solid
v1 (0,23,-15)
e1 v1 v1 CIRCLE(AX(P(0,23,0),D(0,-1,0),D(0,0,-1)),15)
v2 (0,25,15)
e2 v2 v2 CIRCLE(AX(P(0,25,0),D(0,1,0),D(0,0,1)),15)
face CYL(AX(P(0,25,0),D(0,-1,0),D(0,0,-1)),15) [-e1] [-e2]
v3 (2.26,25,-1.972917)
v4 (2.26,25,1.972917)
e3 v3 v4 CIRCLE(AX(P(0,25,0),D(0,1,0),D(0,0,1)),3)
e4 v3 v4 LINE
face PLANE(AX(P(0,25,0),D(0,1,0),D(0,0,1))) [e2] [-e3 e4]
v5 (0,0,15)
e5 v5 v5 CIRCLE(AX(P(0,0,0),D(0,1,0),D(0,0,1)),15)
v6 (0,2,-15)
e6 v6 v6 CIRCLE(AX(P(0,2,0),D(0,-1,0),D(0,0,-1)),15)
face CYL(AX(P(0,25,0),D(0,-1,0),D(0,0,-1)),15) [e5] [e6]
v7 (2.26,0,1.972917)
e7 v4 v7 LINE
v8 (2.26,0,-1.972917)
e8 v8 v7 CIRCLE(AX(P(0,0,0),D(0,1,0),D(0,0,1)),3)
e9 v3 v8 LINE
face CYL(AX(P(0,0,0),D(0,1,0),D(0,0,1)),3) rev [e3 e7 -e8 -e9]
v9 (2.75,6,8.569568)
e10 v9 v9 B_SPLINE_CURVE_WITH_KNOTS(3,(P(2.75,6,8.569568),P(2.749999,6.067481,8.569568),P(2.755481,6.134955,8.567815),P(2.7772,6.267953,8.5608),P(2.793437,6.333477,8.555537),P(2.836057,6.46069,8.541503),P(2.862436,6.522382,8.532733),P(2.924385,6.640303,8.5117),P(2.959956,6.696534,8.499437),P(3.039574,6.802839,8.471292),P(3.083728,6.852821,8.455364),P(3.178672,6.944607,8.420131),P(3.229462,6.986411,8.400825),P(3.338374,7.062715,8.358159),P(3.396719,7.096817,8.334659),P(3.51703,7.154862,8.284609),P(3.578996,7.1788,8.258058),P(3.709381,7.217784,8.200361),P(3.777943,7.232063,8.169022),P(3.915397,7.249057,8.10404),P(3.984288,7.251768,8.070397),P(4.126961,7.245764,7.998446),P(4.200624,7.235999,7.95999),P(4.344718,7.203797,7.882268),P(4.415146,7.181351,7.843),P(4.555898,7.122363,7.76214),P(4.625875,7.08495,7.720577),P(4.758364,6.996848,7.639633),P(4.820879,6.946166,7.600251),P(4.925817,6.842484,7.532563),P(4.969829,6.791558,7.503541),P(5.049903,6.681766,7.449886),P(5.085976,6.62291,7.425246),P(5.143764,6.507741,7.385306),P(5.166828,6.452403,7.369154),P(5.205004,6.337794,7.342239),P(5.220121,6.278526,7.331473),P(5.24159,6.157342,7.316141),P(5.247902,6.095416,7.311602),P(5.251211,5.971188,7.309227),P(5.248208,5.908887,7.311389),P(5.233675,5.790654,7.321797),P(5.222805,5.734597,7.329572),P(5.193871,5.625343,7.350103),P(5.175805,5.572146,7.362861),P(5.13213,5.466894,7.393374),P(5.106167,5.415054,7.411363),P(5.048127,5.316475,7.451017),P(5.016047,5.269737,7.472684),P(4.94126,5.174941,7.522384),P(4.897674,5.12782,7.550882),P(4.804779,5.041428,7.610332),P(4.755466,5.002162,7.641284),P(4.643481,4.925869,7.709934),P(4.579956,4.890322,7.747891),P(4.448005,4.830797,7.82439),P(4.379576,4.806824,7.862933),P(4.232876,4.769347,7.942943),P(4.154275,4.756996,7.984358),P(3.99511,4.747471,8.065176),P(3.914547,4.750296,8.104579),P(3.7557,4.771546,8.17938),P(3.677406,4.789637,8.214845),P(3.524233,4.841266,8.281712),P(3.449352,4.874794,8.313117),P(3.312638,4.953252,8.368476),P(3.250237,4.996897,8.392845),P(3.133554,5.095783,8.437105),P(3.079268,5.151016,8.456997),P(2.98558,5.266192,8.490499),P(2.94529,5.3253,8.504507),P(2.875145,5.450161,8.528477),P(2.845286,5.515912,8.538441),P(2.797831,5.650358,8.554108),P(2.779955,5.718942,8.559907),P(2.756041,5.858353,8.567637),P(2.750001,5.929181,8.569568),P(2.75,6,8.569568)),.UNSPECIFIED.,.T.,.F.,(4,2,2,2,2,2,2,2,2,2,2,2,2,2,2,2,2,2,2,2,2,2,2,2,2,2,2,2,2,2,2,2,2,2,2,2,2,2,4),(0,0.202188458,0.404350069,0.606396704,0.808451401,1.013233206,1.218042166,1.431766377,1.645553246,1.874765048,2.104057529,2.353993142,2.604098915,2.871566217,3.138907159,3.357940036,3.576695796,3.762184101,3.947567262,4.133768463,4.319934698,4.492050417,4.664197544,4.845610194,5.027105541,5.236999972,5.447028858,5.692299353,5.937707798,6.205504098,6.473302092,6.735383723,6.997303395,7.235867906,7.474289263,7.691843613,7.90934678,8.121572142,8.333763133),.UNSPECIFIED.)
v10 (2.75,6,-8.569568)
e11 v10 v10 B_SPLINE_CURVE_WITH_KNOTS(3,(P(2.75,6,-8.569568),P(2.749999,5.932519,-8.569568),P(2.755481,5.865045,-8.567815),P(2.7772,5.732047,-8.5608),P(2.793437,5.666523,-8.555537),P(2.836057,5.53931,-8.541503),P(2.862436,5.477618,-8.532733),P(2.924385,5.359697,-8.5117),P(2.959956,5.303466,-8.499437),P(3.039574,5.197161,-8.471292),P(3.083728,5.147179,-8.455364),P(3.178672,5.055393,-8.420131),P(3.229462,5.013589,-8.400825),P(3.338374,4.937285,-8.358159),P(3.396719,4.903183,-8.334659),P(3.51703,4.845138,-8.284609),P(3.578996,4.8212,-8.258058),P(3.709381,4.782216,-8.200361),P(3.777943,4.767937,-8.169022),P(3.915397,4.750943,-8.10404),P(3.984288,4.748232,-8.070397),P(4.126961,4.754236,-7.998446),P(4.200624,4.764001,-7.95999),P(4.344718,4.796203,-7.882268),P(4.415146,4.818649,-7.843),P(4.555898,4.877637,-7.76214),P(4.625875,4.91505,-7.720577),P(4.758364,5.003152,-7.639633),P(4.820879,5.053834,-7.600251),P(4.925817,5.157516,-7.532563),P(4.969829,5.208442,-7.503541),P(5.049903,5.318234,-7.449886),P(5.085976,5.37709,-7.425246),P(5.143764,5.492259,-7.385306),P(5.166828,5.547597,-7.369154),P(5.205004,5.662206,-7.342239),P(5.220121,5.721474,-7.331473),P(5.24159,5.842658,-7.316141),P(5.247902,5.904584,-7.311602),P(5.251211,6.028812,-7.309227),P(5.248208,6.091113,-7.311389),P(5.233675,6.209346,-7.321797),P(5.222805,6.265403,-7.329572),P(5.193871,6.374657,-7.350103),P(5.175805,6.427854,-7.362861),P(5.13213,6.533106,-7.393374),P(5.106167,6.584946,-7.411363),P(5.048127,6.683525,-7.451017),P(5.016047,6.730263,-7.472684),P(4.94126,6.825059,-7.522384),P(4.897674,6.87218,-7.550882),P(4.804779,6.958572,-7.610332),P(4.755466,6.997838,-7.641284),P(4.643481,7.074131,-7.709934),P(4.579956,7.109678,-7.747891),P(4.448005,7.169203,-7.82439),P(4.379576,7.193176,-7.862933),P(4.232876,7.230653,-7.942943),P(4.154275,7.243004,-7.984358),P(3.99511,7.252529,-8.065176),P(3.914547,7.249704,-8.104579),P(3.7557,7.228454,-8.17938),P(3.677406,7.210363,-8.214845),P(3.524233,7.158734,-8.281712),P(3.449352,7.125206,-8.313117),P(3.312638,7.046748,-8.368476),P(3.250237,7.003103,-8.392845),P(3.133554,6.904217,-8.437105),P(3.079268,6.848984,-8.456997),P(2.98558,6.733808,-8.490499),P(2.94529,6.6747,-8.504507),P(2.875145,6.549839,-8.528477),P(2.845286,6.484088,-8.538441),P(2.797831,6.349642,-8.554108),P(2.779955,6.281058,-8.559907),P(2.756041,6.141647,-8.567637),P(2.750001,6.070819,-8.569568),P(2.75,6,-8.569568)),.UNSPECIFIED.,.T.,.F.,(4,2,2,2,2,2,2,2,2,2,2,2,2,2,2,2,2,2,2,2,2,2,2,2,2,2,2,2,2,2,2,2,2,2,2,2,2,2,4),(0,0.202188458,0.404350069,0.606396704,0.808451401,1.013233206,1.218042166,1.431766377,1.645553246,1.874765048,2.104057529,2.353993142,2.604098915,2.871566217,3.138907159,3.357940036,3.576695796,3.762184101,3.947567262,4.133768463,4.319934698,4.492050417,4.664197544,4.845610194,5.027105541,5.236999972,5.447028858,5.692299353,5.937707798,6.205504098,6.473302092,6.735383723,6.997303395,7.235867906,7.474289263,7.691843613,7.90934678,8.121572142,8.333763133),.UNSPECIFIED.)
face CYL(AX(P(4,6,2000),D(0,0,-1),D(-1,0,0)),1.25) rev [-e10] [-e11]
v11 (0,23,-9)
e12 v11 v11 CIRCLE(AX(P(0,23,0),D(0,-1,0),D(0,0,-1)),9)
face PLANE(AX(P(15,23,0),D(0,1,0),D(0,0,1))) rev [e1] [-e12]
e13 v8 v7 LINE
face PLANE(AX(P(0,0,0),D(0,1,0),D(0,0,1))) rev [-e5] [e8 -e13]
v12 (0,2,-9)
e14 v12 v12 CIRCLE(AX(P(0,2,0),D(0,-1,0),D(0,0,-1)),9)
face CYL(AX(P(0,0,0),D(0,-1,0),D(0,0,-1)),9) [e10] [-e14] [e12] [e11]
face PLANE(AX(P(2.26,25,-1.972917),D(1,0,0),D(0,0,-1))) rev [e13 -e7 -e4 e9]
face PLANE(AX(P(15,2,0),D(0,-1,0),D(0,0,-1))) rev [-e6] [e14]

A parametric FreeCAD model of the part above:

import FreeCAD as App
import Part
import Sketcher
from FreeCAD import Vector


def add_polygon(sketch, points):
    """Adds a closed chain of lines whose ends are joined by coincident constraints."""
    first, n = sketch.GeometryCount, len(points)
    for a, b in zip(points, points[1:] + points[:1]):
        sketch.addGeometry(Part.LineSegment(App.Vector(*a, 0), App.Vector(*b, 0)), False)
    for i in range(n):
        sketch.addConstraint(Sketcher.Constraint("Coincident", first + i, 2, first + (i + 1) % n, 1))

doc = App.newDocument("Part")
body = doc.addObject("PartDesign::Body", "Body")

# Sketch on XZ plane
sketch1 = body.newObject("Sketcher::SketchObject", "Sketch")
sketch1.AttachmentSupport = (doc.getObject("XZ_Plane"), [""])
sketch1.MapMode = "FlatFace"
sketch1.addGeometry(Part.Circle(Vector(0, 0, 0), Vector(0, 0, 1), 15), False)
sketch1.addConstraint(Sketcher.Constraint("Coincident", 0, 3, -1, 1))
sketch1.addConstraint(Sketcher.Constraint("Diameter", 0, 30.0))
pad1 = body.newObject("PartDesign::Pad", "Pad")
pad1.Profile = sketch1
pad1.Length = 25
pad1.Reversed = True

# Sketch on XZ plane
sketch2 = body.newObject("Sketcher::SketchObject", "Sketch001")
sketch2.AttachmentSupport = (doc.getObject("XZ_Plane"), [""])
sketch2.MapMode = "FlatFace"
sketch2.AttachmentOffset = App.Placement(Vector(0, 0, -25), App.Rotation())
sketch2.addGeometry(Part.Circle(Vector(0, 0, 0), Vector(0, 0, 1), 3), False)
sketch2.addConstraint(Sketcher.Constraint("Coincident", 0, 3, -1, 1))
sketch2.addConstraint(Sketcher.Constraint("Diameter", 0, 6.0))
pocket1 = body.newObject("PartDesign::Pocket", "Pocket")
pocket1.Profile = sketch2
pocket1.Length = 25
pocket1.Reversed = True

# Sketch on XZ plane
sketch3 = body.newObject("Sketcher::SketchObject", "Sketch002")
sketch3.AttachmentSupport = (doc.getObject("XZ_Plane"), [""])
sketch3.MapMode = "FlatFace"
add_polygon(sketch3, [(2.3, -2), (2.3, 2), (3.1, 2), (3.1, -2)])  # lines 0-3
sketch3.addConstraint(Sketcher.Constraint("Vertical", 0))
sketch3.addConstraint(Sketcher.Constraint("Horizontal", 1))
sketch3.addConstraint(Sketcher.Constraint("Vertical", 2))
sketch3.addConstraint(Sketcher.Constraint("Horizontal", 3))
sketch3.addConstraint(Sketcher.Constraint("DistanceX", 1, 1, 1, 2, 0.8))
sketch3.addConstraint(Sketcher.Constraint("DistanceX", -1, 1, 0, 2, 2.26))
sketch3.addConstraint(Sketcher.Constraint("DistanceY", 0, 1, 0, 2, 3.945833))
sketch3.addConstraint(Sketcher.Constraint("DistanceY", -1, 1, 0, 2, 1.972917))
pad2 = body.newObject("PartDesign::Pad", "Pad001")
pad2.Profile = sketch3
pad2.Length = 25
pad2.Reversed = True

# Sketch on XY plane
sketch4 = body.newObject("Sketcher::SketchObject", "Sketch003")
sketch4.AttachmentSupport = (doc.getObject("XY_Plane"), [""])
sketch4.MapMode = "FlatFace"
sketch4.addGeometry(Part.Circle(Vector(4, 6, 0), Vector(0, 0, 1), 1.2), False)
sketch4.addConstraint(Sketcher.Constraint("Diameter", 0, 2.5))
sketch4.addConstraint(Sketcher.Constraint("DistanceX", -1, 1, 0, 3, 4.0))
sketch4.addConstraint(Sketcher.Constraint("DistanceY", -1, 1, 0, 3, 6.0))
pocket2 = body.newObject("PartDesign::Pocket", "Pocket001")
pocket2.Profile = sketch4
pocket2.Type = "ThroughAll"
pocket2.Midplane = True

# Sketch on XY plane
sketch5 = body.newObject("Sketcher::SketchObject", "Sketch004")
sketch5.AttachmentSupport = (doc.getObject("XY_Plane"), [""])
sketch5.MapMode = "FlatFace"
add_polygon(sketch5, [(9, 23), (9, 2), (15, 2), (15, 23)])  # lines 0-3
sketch5.addConstraint(Sketcher.Constraint("Vertical", 0))
sketch5.addConstraint(Sketcher.Constraint("Horizontal", 1))
sketch5.addConstraint(Sketcher.Constraint("Vertical", 2))
sketch5.addConstraint(Sketcher.Constraint("Horizontal", 3))
sketch5.addConstraint(Sketcher.Constraint("DistanceX", 1, 1, 1, 2, 6.0))
sketch5.addConstraint(Sketcher.Constraint("DistanceY", 0, 2, 0, 1, 21.0))
sketch5.addConstraint(Sketcher.Constraint("DistanceX", -1, 1, 0, 2, 9.0))
sketch5.addConstraint(Sketcher.Constraint("DistanceY", -1, 1, 0, 2, 2.0))
groove = body.newObject("PartDesign::Groove", "Groove")
groove.Profile = sketch5
groove.ReferenceAxis = (sketch5, ["V_Axis"])
groove.Angle = 360

doc.recompute()
